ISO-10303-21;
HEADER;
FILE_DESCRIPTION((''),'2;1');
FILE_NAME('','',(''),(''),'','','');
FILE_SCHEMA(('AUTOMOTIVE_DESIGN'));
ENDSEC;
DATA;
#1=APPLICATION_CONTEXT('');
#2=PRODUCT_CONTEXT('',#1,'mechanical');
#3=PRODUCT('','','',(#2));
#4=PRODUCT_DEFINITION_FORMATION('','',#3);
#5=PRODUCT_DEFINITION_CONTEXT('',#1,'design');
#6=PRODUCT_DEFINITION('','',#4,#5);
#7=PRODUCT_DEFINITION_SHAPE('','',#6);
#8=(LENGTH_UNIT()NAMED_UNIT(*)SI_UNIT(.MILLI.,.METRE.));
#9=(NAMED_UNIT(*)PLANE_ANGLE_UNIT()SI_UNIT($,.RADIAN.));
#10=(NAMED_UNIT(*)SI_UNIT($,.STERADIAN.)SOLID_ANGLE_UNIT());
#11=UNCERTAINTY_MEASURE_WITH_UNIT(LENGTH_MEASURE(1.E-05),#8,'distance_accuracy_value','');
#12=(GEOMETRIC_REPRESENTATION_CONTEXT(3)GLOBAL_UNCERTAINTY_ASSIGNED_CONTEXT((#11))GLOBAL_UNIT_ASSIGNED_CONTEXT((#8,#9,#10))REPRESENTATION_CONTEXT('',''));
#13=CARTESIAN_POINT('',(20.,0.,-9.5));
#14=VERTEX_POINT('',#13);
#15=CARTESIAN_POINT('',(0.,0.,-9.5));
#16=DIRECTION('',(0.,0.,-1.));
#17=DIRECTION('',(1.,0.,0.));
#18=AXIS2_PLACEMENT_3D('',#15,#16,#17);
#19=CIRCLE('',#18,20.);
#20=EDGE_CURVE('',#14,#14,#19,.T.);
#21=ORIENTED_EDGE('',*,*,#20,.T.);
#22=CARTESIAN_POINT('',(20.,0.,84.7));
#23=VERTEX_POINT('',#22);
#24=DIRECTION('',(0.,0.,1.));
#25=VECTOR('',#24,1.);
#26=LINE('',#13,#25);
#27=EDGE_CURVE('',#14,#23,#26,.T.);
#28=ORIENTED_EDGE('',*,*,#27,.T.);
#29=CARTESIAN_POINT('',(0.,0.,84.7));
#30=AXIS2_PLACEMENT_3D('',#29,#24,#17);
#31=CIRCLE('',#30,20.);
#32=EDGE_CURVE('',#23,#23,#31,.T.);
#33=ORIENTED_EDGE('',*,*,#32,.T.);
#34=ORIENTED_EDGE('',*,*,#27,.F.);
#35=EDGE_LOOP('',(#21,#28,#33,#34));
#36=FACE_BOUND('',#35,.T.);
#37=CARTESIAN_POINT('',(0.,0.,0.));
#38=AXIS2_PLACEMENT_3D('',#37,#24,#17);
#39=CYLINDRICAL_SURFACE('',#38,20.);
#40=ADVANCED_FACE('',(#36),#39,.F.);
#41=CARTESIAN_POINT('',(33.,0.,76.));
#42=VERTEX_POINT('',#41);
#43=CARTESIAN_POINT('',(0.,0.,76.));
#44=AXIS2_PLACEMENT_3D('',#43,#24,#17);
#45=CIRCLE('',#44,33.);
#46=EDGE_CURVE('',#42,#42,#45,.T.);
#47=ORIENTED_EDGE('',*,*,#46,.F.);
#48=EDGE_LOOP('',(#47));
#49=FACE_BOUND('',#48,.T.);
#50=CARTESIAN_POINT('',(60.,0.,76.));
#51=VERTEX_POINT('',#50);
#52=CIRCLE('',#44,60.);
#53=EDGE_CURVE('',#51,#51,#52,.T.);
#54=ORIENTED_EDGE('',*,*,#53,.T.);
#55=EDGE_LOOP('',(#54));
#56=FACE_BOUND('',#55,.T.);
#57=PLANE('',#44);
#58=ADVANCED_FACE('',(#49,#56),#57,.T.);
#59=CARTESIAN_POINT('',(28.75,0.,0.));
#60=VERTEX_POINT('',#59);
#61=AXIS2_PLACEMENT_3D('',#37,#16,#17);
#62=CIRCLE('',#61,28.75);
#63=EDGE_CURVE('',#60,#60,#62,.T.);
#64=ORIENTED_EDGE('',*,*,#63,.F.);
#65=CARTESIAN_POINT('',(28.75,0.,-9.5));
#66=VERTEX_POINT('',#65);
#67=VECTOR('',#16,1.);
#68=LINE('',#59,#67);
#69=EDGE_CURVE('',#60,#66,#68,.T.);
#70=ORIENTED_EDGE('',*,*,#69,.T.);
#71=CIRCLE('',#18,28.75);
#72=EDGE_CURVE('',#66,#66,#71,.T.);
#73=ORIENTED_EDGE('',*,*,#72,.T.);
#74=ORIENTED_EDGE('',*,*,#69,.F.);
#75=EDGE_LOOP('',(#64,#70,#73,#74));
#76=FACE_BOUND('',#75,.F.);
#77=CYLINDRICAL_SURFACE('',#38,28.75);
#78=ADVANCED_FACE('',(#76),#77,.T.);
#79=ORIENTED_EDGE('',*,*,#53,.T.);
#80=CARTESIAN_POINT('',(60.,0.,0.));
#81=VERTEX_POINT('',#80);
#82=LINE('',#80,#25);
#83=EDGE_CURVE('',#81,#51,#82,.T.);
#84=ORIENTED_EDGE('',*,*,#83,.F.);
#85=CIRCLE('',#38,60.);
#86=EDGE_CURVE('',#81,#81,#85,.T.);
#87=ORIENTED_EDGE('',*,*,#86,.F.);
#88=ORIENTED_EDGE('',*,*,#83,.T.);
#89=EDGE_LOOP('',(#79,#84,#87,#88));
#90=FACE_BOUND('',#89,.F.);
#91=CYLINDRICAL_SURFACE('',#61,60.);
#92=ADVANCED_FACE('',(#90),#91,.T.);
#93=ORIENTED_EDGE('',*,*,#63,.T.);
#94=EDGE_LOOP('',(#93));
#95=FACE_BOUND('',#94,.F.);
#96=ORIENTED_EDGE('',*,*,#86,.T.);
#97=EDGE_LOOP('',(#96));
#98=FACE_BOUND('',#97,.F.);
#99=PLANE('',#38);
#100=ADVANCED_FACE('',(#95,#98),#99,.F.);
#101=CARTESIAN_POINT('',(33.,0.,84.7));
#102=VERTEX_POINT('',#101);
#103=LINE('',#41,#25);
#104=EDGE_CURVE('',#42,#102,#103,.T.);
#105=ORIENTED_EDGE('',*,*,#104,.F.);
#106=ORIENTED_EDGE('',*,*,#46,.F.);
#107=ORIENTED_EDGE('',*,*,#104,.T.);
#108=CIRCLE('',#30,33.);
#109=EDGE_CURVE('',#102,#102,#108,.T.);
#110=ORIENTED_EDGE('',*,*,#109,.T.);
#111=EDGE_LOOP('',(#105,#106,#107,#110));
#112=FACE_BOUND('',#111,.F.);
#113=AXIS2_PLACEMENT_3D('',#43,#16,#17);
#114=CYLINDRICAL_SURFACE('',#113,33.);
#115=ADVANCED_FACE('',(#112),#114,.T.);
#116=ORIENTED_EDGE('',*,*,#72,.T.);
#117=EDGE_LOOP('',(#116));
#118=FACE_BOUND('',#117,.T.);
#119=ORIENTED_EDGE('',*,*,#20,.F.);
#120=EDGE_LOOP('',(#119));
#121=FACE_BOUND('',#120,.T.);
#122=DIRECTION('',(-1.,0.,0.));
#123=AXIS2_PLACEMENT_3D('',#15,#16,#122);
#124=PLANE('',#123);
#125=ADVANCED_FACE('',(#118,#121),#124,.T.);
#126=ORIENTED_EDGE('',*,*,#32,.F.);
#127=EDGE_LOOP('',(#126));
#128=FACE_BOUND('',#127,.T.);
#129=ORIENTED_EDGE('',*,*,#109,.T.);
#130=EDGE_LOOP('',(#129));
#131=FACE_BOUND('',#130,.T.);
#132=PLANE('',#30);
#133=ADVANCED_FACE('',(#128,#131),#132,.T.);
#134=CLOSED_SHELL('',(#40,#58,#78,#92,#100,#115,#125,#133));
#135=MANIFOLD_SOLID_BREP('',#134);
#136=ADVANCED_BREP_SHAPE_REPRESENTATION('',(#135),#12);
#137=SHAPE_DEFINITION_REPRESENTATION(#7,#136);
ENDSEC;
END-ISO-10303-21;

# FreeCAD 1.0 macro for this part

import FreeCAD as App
import Part
import Sketcher

V = App.Vector

doc = App.newDocument("Part")
params = doc.addObject("Spreadsheet::Sheet", "Params")
for row, (alias, value) in enumerate([
    ("sketch1_diameter", "120 mm"),
    ("sketch1_diameter2", "40 mm"),
    ("pad1_length", "76 mm"),
    ("sketch2_diameter", "66 mm"),
    ("sketch2_diameter2", "40 mm"),
    ("pad2_length", "8.7 mm"),
    ("sketch3_diameter", "40 mm"),
    ("sketch3_diameter2", "57.5 mm"),
    ("pad3_length", "9.5 mm"),
], start=1):
    params.set(f"A{row}", alias)
    params.set(f"B{row}", "=" + value)
    params.setAlias(f"B{row}", alias)

body = doc.addObject("PartDesign::Body", "Body")

# Sketch on XY plane
sketch1 = doc.addObject("Sketcher::SketchObject", "Sketch")
body.addObject(sketch1)
sketch1.AttachmentSupport = (doc.XY_Plane, [""])
sketch1.MapMode = "FlatFace"
sketch1.addGeometry([
    Part.Circle(V(0, 0, 0), V(0, 0, 1), 60),
    Part.Circle(V(0, 0, 0), V(0, 0, 1), 20),
], False)
sketch1.addConstraint([
    Sketcher.Constraint("Coincident", 0, 3, -1, 1),
    Sketcher.Constraint("Coincident", 1, 3, -1, 1),
    Sketcher.Constraint("Diameter", 0, 120.0),
    Sketcher.Constraint("Diameter", 1, 40.0),
])
sketch1.setExpression("Constraints[2]", "Params.sketch1_diameter")
sketch1.setExpression("Constraints[3]", "Params.sketch1_diameter2")
pad1 = doc.addObject("PartDesign::Pad", "Pad")
body.addObject(pad1)
pad1.Profile = sketch1
pad1.setExpression("Length", "Params.pad1_length")

# Sketch on XY plane
sketch2 = doc.addObject("Sketcher::SketchObject", "Sketch001")
body.addObject(sketch2)
sketch2.AttachmentSupport = (doc.XY_Plane, [""])
sketch2.MapMode = "FlatFace"
sketch2.AttachmentOffset = App.Placement(V(0, 0, 76), App.Rotation())
sketch2.addGeometry([
    Part.Circle(V(0, 0, 0), V(0, 0, 1), 33),
    Part.Circle(V(0, 0, 0), V(0, 0, 1), 20),
], False)
sketch2.addConstraint([
    Sketcher.Constraint("Coincident", 0, 3, -1, 1),
    Sketcher.Constraint("Coincident", 1, 3, -1, 1),
    Sketcher.Constraint("Diameter", 0, 66.0),
    Sketcher.Constraint("Diameter", 1, 40.0),
])
sketch2.setExpression("Constraints[2]", "Params.sketch2_diameter")
sketch2.setExpression("Constraints[3]", "Params.sketch2_diameter2")
pad2 = doc.addObject("PartDesign::Pad", "Pad001")
body.addObject(pad2)
pad2.Profile = sketch2
pad2.setExpression("Length", "Params.pad2_length")

# Sketch on XY plane
sketch3 = doc.addObject("Sketcher::SketchObject", "Sketch002")
body.addObject(sketch3)
sketch3.AttachmentSupport = (doc.XY_Plane, [""])
sketch3.MapMode = "FlatFace"
sketch3.addGeometry([
    Part.Circle(V(0, 0, 0), V(0, 0, 1), 28.75),
    Part.Circle(V(0, 0, 0), V(0, 0, 1), 20),
], False)
sketch3.addConstraint([
    Sketcher.Constraint("Coincident", 0, 3, -1, 1),
    Sketcher.Constraint("Coincident", 1, 3, -1, 1),
    Sketcher.Constraint("Diameter", 1, 40.0),
    Sketcher.Constraint("Diameter", 0, 57.5),
])
sketch3.setExpression("Constraints[2]", "Params.sketch3_diameter")
sketch3.setExpression("Constraints[3]", "Params.sketch3_diameter2")
pad3 = doc.addObject("PartDesign::Pad", "Pad002")
body.addObject(pad3)
pad3.Profile = sketch3
pad3.setExpression("Length", "Params.pad3_length")
pad3.Reversed = True

doc.recompute()
